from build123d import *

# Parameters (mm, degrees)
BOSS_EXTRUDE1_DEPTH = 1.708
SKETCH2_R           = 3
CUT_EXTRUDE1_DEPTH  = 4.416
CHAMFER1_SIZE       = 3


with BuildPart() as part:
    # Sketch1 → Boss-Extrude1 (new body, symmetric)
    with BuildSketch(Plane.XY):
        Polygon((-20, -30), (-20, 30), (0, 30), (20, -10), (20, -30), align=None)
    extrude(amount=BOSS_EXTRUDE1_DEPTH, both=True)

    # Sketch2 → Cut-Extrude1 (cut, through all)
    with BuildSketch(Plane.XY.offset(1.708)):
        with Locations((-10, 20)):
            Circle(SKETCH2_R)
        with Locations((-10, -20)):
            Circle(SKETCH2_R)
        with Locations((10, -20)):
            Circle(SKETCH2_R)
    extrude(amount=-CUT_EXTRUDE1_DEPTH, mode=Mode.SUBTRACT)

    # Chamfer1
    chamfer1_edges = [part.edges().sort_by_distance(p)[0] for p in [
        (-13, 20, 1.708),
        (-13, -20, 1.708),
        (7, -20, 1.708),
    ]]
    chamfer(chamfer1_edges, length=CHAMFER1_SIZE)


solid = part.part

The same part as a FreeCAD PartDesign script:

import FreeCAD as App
import Part
import Sketcher

V = App.Vector
Q = App.Units.Quantity


def edges_at(feature, points):
    """Names of the edges that pass closest to the given points."""
    edges = feature.Shape.Edges
    near = lambda p: min(range(len(edges)), key=lambda i: edges[i].distToShape(Part.Vertex(*p))[0])
    return sorted({f"Edge{near(p) + 1}" for p in points})


def add_polygon(sketch, points):
    """Adds a closed chain of lines whose ends are joined by coincident constraints."""
    first, n = sketch.GeometryCount, len(points)
    for a, b in zip(points, points[1:] + points[:1]):
        sketch.addGeometry(Part.LineSegment(App.Vector(*a, 0), App.Vector(*b, 0)), False)
    for i in range(n):
        sketch.addConstraint(Sketcher.Constraint("Coincident", first + i, 2, first + (i + 1) % n, 1))

doc = App.newDocument("Part")
body = doc.addObject("PartDesign::Body", "Body")

sketch1 = doc.addObject("Sketcher::SketchObject", "Sketch")
body.addObject(sketch1)
sketch1.AttachmentSupport = (doc.XY_Plane, [""])
sketch1.MapMode = "FlatFace"
add_polygon(sketch1, [(-20, 30), (-20, -30), (20, -30), (20, -10), (0, 30)])
sketch1.addConstraint([
    Sketcher.Constraint("Vertical", 0),
    Sketcher.Constraint("Horizontal", 1),
    Sketcher.Constraint("Vertical", 2),
    Sketcher.Constraint("Horizontal", 4),
    Sketcher.Constraint("Symmetric", 1, 2, 4, 2, -1, 1),
    Sketcher.Constraint("PointOnObject", 3, 2, -2),
    Sketcher.Constraint("Equal", 4, 2),
    Sketcher.Constraint("DistanceX", 1, 1, 1, 2, Q("40 mm")),
    Sketcher.Constraint("DistanceY", 0, 2, 0, 1, Q("60 mm")),
])
pad1 = doc.addObject("PartDesign::Pad", "Pad")
body.addObject(pad1)
pad1.Profile = sketch1
pad1.Length = 3.416
pad1.Midplane = True

sketch2 = doc.addObject("Sketcher::SketchObject", "Sketch001")
body.addObject(sketch2)
sketch2.AttachmentSupport = (doc.XY_Plane, [""])
sketch2.MapMode = "FlatFace"
sketch2.AttachmentOffset = App.Placement(V(0, 0, 1.708), App.Rotation())
sketch2.addGeometry([
    Part.Circle(V(-10, 20, 0), V(0, 0, 1), 3),
    Part.Circle(V(-10, -20, 0), V(0, 0, 1), 3),
    Part.Circle(V(10, -20, 0), V(0, 0, 1), 3),
], False)
sketch2.addConstraint([
    Sketcher.Constraint("Equal", 0, 1),
    Sketcher.Constraint("Equal", 1, 2),
    Sketcher.Constraint("Symmetric", 0, 3, 2, 3, -1, 1),
    Sketcher.Constraint("Symmetric", 1, 3, 2, 3, -2),
    Sketcher.Constraint("Diameter", 0, Q("6 mm")),
    Sketcher.Constraint("DistanceX", 0, 3, -1, 1, Q("10 mm")),
    Sketcher.Constraint("DistanceY", -1, 1, 0, 3, Q("20 mm")),
])
pocket1 = doc.addObject("PartDesign::Pocket", "Pocket")
body.addObject(pocket1)
pocket1.Profile = sketch2
pocket1.Type = "ThroughAll"
doc.recompute()

chamfer = doc.addObject("PartDesign::Chamfer", "Chamfer")
body.addObject(chamfer)
chamfer.Base = (pocket1, edges_at(pocket1, [(-13, 20, 1.708), (-13, -20, 1.708), (7, -20, 1.708)]))
chamfer.Size = 3

doc.recompute()
